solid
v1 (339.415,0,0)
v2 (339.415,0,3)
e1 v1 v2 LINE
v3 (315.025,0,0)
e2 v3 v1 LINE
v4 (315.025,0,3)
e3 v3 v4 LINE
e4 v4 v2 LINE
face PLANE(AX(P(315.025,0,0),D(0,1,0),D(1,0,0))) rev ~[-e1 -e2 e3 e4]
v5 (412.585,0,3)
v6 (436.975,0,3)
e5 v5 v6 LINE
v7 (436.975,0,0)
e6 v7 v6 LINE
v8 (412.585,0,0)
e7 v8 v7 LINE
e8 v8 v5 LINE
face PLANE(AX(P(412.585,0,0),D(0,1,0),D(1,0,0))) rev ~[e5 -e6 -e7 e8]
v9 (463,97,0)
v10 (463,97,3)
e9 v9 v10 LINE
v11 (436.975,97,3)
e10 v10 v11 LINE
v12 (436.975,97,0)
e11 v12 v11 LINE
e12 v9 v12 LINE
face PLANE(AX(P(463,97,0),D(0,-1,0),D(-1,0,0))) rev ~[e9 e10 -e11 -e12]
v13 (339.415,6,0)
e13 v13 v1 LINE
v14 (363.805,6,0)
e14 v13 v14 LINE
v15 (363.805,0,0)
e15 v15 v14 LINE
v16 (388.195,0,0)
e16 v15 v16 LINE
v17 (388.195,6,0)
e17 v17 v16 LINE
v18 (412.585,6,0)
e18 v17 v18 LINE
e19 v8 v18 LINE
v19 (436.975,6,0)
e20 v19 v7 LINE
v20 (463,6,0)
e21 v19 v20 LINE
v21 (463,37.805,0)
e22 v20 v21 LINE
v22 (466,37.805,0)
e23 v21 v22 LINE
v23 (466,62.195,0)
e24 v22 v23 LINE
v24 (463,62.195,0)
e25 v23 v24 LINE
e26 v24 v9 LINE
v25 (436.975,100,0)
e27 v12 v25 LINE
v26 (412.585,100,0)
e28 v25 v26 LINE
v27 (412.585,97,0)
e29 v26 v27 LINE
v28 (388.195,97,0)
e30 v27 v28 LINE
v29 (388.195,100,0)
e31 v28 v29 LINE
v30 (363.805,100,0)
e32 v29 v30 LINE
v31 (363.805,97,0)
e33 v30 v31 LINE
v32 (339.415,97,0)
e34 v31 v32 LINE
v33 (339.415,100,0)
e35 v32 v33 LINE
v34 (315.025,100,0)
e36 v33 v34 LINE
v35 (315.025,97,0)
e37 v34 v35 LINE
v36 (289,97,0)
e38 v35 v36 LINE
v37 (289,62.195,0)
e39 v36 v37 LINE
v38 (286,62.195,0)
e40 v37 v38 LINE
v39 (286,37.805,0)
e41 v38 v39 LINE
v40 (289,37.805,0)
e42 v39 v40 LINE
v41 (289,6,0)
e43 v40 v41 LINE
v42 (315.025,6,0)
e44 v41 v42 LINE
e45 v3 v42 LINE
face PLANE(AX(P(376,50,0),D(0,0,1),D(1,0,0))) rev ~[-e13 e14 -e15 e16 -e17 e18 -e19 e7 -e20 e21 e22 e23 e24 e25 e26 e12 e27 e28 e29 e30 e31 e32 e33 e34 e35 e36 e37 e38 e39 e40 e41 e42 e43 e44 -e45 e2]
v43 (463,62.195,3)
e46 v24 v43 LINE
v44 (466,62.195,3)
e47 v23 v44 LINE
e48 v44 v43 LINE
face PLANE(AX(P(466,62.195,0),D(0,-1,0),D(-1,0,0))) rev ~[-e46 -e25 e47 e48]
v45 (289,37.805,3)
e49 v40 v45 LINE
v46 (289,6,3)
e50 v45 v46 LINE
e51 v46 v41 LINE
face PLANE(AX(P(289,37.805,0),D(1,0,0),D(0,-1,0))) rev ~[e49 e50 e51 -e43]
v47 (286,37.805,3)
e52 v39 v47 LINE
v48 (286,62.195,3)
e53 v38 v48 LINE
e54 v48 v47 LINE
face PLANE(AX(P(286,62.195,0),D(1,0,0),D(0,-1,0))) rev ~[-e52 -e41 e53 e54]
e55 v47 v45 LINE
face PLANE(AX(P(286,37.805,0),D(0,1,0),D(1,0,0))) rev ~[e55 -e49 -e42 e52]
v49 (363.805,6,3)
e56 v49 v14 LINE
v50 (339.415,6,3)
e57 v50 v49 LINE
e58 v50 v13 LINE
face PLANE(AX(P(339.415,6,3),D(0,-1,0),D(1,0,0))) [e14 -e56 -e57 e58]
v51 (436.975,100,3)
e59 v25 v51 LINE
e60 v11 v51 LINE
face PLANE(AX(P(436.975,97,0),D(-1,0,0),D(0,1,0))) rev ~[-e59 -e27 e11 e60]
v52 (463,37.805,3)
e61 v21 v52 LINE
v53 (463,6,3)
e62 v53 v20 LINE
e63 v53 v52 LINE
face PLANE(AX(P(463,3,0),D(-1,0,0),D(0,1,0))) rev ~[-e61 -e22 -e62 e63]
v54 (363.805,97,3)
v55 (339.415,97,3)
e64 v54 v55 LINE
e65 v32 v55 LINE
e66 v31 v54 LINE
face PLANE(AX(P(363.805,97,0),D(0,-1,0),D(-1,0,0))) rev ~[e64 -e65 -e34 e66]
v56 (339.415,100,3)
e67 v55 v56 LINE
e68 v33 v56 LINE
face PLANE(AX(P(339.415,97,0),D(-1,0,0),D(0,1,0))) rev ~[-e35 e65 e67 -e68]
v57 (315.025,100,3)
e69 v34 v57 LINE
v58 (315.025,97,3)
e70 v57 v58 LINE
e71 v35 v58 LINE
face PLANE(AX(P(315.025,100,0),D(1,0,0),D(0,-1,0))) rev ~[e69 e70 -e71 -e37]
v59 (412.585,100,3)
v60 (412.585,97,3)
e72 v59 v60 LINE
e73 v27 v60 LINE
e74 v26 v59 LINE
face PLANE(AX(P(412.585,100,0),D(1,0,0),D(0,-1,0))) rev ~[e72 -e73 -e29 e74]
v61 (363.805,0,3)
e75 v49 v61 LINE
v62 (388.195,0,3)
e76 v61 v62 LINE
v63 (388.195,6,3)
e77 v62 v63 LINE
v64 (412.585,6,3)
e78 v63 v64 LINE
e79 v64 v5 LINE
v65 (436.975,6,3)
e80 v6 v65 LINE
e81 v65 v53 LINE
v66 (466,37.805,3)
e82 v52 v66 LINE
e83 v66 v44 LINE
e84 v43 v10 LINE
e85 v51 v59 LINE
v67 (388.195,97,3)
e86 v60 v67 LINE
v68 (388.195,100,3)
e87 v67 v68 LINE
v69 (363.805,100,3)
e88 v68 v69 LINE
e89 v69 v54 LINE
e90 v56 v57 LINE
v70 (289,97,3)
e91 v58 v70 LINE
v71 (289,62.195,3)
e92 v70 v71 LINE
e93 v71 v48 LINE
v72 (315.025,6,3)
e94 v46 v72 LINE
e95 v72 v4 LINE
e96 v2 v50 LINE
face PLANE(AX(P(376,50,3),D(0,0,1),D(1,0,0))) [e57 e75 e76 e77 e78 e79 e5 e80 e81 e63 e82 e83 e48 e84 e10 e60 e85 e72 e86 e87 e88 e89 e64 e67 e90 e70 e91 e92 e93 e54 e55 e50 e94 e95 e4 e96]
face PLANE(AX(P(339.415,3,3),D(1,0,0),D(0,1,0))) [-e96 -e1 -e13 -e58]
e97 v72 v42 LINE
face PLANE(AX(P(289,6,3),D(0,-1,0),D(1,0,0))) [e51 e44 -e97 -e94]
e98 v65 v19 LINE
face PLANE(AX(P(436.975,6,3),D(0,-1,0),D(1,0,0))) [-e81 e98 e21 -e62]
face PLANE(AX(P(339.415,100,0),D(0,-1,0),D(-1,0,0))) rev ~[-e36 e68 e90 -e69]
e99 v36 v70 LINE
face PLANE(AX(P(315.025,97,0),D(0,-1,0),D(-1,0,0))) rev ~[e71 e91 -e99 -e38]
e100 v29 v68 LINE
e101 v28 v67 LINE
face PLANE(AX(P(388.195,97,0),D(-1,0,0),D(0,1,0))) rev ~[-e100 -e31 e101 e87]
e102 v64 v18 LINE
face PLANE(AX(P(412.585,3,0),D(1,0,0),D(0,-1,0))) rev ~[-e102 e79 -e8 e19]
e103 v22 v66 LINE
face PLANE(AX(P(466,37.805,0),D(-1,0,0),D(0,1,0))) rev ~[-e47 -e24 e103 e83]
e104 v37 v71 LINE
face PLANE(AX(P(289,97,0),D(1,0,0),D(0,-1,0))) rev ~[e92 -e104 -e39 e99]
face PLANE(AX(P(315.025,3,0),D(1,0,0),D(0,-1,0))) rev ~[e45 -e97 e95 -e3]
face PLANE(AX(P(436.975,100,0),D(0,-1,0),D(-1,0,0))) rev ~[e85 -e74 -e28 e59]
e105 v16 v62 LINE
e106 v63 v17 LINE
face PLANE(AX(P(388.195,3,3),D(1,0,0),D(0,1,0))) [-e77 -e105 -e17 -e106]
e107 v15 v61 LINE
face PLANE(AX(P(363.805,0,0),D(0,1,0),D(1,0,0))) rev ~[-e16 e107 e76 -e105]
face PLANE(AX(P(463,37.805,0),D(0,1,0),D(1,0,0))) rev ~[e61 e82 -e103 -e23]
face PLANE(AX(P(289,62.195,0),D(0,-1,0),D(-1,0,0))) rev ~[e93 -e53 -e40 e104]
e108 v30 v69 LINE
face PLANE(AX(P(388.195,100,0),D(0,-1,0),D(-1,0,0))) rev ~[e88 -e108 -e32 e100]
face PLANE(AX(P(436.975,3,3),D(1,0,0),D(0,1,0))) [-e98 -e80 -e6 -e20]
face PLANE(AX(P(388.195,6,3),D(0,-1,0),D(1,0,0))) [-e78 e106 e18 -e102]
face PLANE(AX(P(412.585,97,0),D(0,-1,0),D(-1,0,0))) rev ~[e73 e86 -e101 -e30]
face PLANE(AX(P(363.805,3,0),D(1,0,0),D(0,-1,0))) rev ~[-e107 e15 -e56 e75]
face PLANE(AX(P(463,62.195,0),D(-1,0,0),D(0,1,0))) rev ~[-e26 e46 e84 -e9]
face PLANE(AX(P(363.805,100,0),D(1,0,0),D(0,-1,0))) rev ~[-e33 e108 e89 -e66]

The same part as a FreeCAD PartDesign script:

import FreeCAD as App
import Part
import Sketcher

V = App.Vector


def add_polygon(sketch, points):
    """Adds a closed chain of lines whose ends are joined by coincident constraints."""
    first, n = sketch.GeometryCount, len(points)
    for a, b in zip(points, points[1:] + points[:1]):
        sketch.addGeometry(Part.LineSegment(App.Vector(*a, 0), App.Vector(*b, 0)), False)
    for i in range(n):
        sketch.addConstraint(Sketcher.Constraint("Coincident", first + i, 2, first + (i + 1) % n, 1))

doc = App.newDocument("Part")
body = doc.addObject("PartDesign::Body", "Body")

# Sketch on XY plane
sketch1 = body.newObject("Sketcher::SketchObject", "Sketch")
sketch1.AttachmentSupport = (doc.getObject("XY_Plane"), [""])
sketch1.MapMode = "FlatFace"
add_polygon(sketch1, [(289, 97), (289, 62.2), (286, 62.2), (286, 37.8), (289, 37.8), (289, 3), (315, 3), (315, 0), (339.4, 0), (339.4, 3), (363.8, 3), (363.8, 0), (388.2, 0), (388.2, 3), (412.6, 3), (412.6, 0), (437, 0), (437, 3), (463, 3), (463, 37.8), (466, 37.8), (466, 62.2), (463, 62.2), (463, 97), (437, 97), (437, 100), (412.6, 100), (412.6, 97), (388.2, 97), (388.2, 100), (363.8, 100), (363.8, 97), (339.4, 97), (339.4, 100), (315, 100), (315, 97)])  # lines 0-35
sketch1.addConstraint(Sketcher.Constraint("Vertical", 0))
sketch1.addConstraint(Sketcher.Constraint("Horizontal", 1))
sketch1.addConstraint(Sketcher.Constraint("Vertical", 2))
sketch1.addConstraint(Sketcher.Constraint("Horizontal", 3))
sketch1.addConstraint(Sketcher.Constraint("Vertical", 4))
sketch1.addConstraint(Sketcher.Constraint("Horizontal", 5))
sketch1.addConstraint(Sketcher.Constraint("Vertical", 6))
sketch1.addConstraint(Sketcher.Constraint("Horizontal", 7))
sketch1.addConstraint(Sketcher.Constraint("Vertical", 8))
sketch1.addConstraint(Sketcher.Constraint("Horizontal", 9))
sketch1.addConstraint(Sketcher.Constraint("Vertical", 10))
sketch1.addConstraint(Sketcher.Constraint("Horizontal", 11))
sketch1.addConstraint(Sketcher.Constraint("Vertical", 12))
sketch1.addConstraint(Sketcher.Constraint("Horizontal", 13))
sketch1.addConstraint(Sketcher.Constraint("Vertical", 14))
sketch1.addConstraint(Sketcher.Constraint("Horizontal", 15))
sketch1.addConstraint(Sketcher.Constraint("Vertical", 16))
sketch1.addConstraint(Sketcher.Constraint("Horizontal", 17))
sketch1.addConstraint(Sketcher.Constraint("Vertical", 18))
sketch1.addConstraint(Sketcher.Constraint("Horizontal", 19))
sketch1.addConstraint(Sketcher.Constraint("Vertical", 20))
sketch1.addConstraint(Sketcher.Constraint("Horizontal", 21))
sketch1.addConstraint(Sketcher.Constraint("Vertical", 22))
sketch1.addConstraint(Sketcher.Constraint("Horizontal", 23))
sketch1.addConstraint(Sketcher.Constraint("Vertical", 24))
sketch1.addConstraint(Sketcher.Constraint("Horizontal", 25))
sketch1.addConstraint(Sketcher.Constraint("Vertical", 26))
sketch1.addConstraint(Sketcher.Constraint("Horizontal", 27))
sketch1.addConstraint(Sketcher.Constraint("Vertical", 28))
sketch1.addConstraint(Sketcher.Constraint("Horizontal", 29))
sketch1.addConstraint(Sketcher.Constraint("Vertical", 30))
sketch1.addConstraint(Sketcher.Constraint("Horizontal", 31))
sketch1.addConstraint(Sketcher.Constraint("Vertical", 32))
sketch1.addConstraint(Sketcher.Constraint("Horizontal", 33))
sketch1.addConstraint(Sketcher.Constraint("Vertical", 34))
sketch1.addConstraint(Sketcher.Constraint("Horizontal", 35))
sketch1.addConstraint(Sketcher.Constraint("PointOnObject", 6, 2, -1))
sketch1.addConstraint(Sketcher.Constraint("PointOnObject", 10, 2, -1))
sketch1.addConstraint(Sketcher.Constraint("PointOnObject", 14, 2, -1))
sketch1.addConstraint(Sketcher.Constraint("Horizontal", 5, 2, 8, 2))
sketch1.addConstraint(Sketcher.Constraint("Horizontal", 9, 2, 12, 2))
sketch1.addConstraint(Sketcher.Constraint("Horizontal", 13, 2, 16, 2))
sketch1.addConstraint(Sketcher.Constraint("Horizontal", 3, 2, 18, 2))
sketch1.addConstraint(Sketcher.Constraint("Horizontal", 1, 2, 20, 2))
sketch1.addConstraint(Sketcher.Constraint("Horizontal", 23, 2, 26, 2))
sketch1.addConstraint(Sketcher.Constraint("Horizontal", 25, 2, 28, 2))
sketch1.addConstraint(Sketcher.Constraint("Horizontal", 27, 2, 30, 2))
sketch1.addConstraint(Sketcher.Constraint("Horizontal", 29, 2, 32, 2))
sketch1.addConstraint(Sketcher.Constraint("Horizontal", 31, 2, 34, 2))
sketch1.addConstraint(Sketcher.Constraint("Vertical", 0, 2, 3, 2))
sketch1.addConstraint(Sketcher.Constraint("Vertical", 18, 2, 21, 2))
sketch1.addConstraint(Sketcher.Constraint("Vertical", 16, 2, 23, 2))
sketch1.addConstraint(Sketcher.Constraint("Vertical", 14, 2, 25, 2))
sketch1.addConstraint(Sketcher.Constraint("Vertical", 12, 2, 27, 2))
sketch1.addConstraint(Sketcher.Constraint("Vertical", 10, 2, 29, 2))
sketch1.addConstraint(Sketcher.Constraint("Vertical", 8, 2, 31, 2))
sketch1.addConstraint(Sketcher.Constraint("Vertical", 6, 2, 33, 2))
sketch1.addConstraint(Sketcher.Constraint("Equal", 7, 9))
sketch1.addConstraint(Sketcher.Constraint("Equal", 9, 11))
sketch1.addConstraint(Sketcher.Constraint("Equal", 11, 13))
sketch1.addConstraint(Sketcher.Constraint("Equal", 13, 15))
sketch1.addConstraint(Sketcher.Constraint("Equal", 5, 17))
sketch1.addConstraint(Sketcher.Constraint("Equal", 3, 19))
sketch1.addConstraint(Sketcher.Constraint("Equal", 33, 2))
sketch1.addConstraint(Sketcher.Constraint("Equal", 0, 4))
sketch1.addConstraint(Sketcher.Constraint("Equal", 21, 6))
sketch1.addConstraint(Sketcher.Constraint("Equal", 16, 24))
sketch1.addConstraint(Sketcher.Constraint("DistanceX", 1, 2, 1, 1, 3.0))
sketch1.addConstraint(Sketcher.Constraint("DistanceX", -1, 1, 0, 2, 289.0))
sketch1.addConstraint(Sketcher.Constraint("DistanceX", -1, 1, 17, 2, 463.0))
sketch1.addConstraint(Sketcher.Constraint("DistanceY", -1, 1, 22, 2, 97.0))
sketch1.addConstraint(Sketcher.Constraint("DistanceX", 7, 1, 7, 2, 24.39))
pad1 = body.newObject("PartDesign::Pad", "Pad")
pad1.Profile = sketch1
pad1.Length = 3

# Sketch on XY plane
sketch2 = body.newObject("Sketcher::SketchObject", "Sketch001")
sketch2.AttachmentSupport = (doc.getObject("XY_Plane"), [""])
sketch2.MapMode = "FlatFace"
sketch2.AttachmentOffset = App.Placement(V(0, 0, 3), App.Rotation())
add_polygon(sketch2, [(289, 6), (289, 3), (315, 3), (315, 6)])  # lines 0-3
add_polygon(sketch2, [(339.4, 6), (339.4, 3), (363.8, 3), (363.8, 6)])  # lines 4-7
add_polygon(sketch2, [(388.2, 6), (388.2, 3), (412.6, 3), (412.6, 6)])  # lines 8-11
add_polygon(sketch2, [(437, 6), (437, 3), (463, 3), (463, 6)])  # lines 12-15
sketch2.addConstraint(Sketcher.Constraint("Vertical", 0))
sketch2.addConstraint(Sketcher.Constraint("Horizontal", 1))
sketch2.addConstraint(Sketcher.Constraint("Vertical", 2))
sketch2.addConstraint(Sketcher.Constraint("Horizontal", 3))
sketch2.addConstraint(Sketcher.Constraint("Vertical", 4))
sketch2.addConstraint(Sketcher.Constraint("Horizontal", 5))
sketch2.addConstraint(Sketcher.Constraint("Vertical", 6))
sketch2.addConstraint(Sketcher.Constraint("Horizontal", 7))
sketch2.addConstraint(Sketcher.Constraint("Vertical", 8))
sketch2.addConstraint(Sketcher.Constraint("Horizontal", 9))
sketch2.addConstraint(Sketcher.Constraint("Vertical", 10))
sketch2.addConstraint(Sketcher.Constraint("Horizontal", 11))
sketch2.addConstraint(Sketcher.Constraint("Vertical", 12))
sketch2.addConstraint(Sketcher.Constraint("Horizontal", 13))
sketch2.addConstraint(Sketcher.Constraint("Vertical", 14))
sketch2.addConstraint(Sketcher.Constraint("Horizontal", 15))
sketch2.addConstraint(Sketcher.Constraint("Horizontal", 1, 2, 4, 2))
sketch2.addConstraint(Sketcher.Constraint("Horizontal", 3, 2, 6, 2))
sketch2.addConstraint(Sketcher.Constraint("Horizontal", 5, 2, 8, 2))
sketch2.addConstraint(Sketcher.Constraint("Horizontal", 7, 2, 10, 2))
sketch2.addConstraint(Sketcher.Constraint("Horizontal", 9, 2, 12, 2))
sketch2.addConstraint(Sketcher.Constraint("Horizontal", 11, 2, 14, 2))
sketch2.addConstraint(Sketcher.Constraint("Equal", 7, 9))
sketch2.addConstraint(Sketcher.Constraint("Equal", 3, 13))
sketch2.addConstraint(Sketcher.Constraint("DistanceY", 0, 2, 0, 1, 3.0))
sketch2.addConstraint(Sketcher.Constraint("DistanceX", -1, 1, 0, 2, 289.0))
sketch2.addConstraint(Sketcher.Constraint("DistanceY", -1, 1, 0, 2, 3.0))
sketch2.addConstraint(Sketcher.Constraint("DistanceX", -1, 1, 13, 2, 463.0))
sketch2.addConstraint(Sketcher.Constraint("DistanceX", 5, 1, 5, 2, 24.39))
sketch2.addConstraint(Sketcher.Constraint("DistanceX", 1, 1, 1, 2, 26.025))
sketch2.addConstraint(Sketcher.Constraint("DistanceX", 1, 2, 4, 2, 24.39))
sketch2.addConstraint(Sketcher.Constraint("DistanceX", 5, 2, 8, 2, 24.39))
pocket1 = body.newObject("PartDesign::Pocket", "Pocket")
pocket1.Profile = sketch2
pocket1.Length = 3

doc.recompute()
